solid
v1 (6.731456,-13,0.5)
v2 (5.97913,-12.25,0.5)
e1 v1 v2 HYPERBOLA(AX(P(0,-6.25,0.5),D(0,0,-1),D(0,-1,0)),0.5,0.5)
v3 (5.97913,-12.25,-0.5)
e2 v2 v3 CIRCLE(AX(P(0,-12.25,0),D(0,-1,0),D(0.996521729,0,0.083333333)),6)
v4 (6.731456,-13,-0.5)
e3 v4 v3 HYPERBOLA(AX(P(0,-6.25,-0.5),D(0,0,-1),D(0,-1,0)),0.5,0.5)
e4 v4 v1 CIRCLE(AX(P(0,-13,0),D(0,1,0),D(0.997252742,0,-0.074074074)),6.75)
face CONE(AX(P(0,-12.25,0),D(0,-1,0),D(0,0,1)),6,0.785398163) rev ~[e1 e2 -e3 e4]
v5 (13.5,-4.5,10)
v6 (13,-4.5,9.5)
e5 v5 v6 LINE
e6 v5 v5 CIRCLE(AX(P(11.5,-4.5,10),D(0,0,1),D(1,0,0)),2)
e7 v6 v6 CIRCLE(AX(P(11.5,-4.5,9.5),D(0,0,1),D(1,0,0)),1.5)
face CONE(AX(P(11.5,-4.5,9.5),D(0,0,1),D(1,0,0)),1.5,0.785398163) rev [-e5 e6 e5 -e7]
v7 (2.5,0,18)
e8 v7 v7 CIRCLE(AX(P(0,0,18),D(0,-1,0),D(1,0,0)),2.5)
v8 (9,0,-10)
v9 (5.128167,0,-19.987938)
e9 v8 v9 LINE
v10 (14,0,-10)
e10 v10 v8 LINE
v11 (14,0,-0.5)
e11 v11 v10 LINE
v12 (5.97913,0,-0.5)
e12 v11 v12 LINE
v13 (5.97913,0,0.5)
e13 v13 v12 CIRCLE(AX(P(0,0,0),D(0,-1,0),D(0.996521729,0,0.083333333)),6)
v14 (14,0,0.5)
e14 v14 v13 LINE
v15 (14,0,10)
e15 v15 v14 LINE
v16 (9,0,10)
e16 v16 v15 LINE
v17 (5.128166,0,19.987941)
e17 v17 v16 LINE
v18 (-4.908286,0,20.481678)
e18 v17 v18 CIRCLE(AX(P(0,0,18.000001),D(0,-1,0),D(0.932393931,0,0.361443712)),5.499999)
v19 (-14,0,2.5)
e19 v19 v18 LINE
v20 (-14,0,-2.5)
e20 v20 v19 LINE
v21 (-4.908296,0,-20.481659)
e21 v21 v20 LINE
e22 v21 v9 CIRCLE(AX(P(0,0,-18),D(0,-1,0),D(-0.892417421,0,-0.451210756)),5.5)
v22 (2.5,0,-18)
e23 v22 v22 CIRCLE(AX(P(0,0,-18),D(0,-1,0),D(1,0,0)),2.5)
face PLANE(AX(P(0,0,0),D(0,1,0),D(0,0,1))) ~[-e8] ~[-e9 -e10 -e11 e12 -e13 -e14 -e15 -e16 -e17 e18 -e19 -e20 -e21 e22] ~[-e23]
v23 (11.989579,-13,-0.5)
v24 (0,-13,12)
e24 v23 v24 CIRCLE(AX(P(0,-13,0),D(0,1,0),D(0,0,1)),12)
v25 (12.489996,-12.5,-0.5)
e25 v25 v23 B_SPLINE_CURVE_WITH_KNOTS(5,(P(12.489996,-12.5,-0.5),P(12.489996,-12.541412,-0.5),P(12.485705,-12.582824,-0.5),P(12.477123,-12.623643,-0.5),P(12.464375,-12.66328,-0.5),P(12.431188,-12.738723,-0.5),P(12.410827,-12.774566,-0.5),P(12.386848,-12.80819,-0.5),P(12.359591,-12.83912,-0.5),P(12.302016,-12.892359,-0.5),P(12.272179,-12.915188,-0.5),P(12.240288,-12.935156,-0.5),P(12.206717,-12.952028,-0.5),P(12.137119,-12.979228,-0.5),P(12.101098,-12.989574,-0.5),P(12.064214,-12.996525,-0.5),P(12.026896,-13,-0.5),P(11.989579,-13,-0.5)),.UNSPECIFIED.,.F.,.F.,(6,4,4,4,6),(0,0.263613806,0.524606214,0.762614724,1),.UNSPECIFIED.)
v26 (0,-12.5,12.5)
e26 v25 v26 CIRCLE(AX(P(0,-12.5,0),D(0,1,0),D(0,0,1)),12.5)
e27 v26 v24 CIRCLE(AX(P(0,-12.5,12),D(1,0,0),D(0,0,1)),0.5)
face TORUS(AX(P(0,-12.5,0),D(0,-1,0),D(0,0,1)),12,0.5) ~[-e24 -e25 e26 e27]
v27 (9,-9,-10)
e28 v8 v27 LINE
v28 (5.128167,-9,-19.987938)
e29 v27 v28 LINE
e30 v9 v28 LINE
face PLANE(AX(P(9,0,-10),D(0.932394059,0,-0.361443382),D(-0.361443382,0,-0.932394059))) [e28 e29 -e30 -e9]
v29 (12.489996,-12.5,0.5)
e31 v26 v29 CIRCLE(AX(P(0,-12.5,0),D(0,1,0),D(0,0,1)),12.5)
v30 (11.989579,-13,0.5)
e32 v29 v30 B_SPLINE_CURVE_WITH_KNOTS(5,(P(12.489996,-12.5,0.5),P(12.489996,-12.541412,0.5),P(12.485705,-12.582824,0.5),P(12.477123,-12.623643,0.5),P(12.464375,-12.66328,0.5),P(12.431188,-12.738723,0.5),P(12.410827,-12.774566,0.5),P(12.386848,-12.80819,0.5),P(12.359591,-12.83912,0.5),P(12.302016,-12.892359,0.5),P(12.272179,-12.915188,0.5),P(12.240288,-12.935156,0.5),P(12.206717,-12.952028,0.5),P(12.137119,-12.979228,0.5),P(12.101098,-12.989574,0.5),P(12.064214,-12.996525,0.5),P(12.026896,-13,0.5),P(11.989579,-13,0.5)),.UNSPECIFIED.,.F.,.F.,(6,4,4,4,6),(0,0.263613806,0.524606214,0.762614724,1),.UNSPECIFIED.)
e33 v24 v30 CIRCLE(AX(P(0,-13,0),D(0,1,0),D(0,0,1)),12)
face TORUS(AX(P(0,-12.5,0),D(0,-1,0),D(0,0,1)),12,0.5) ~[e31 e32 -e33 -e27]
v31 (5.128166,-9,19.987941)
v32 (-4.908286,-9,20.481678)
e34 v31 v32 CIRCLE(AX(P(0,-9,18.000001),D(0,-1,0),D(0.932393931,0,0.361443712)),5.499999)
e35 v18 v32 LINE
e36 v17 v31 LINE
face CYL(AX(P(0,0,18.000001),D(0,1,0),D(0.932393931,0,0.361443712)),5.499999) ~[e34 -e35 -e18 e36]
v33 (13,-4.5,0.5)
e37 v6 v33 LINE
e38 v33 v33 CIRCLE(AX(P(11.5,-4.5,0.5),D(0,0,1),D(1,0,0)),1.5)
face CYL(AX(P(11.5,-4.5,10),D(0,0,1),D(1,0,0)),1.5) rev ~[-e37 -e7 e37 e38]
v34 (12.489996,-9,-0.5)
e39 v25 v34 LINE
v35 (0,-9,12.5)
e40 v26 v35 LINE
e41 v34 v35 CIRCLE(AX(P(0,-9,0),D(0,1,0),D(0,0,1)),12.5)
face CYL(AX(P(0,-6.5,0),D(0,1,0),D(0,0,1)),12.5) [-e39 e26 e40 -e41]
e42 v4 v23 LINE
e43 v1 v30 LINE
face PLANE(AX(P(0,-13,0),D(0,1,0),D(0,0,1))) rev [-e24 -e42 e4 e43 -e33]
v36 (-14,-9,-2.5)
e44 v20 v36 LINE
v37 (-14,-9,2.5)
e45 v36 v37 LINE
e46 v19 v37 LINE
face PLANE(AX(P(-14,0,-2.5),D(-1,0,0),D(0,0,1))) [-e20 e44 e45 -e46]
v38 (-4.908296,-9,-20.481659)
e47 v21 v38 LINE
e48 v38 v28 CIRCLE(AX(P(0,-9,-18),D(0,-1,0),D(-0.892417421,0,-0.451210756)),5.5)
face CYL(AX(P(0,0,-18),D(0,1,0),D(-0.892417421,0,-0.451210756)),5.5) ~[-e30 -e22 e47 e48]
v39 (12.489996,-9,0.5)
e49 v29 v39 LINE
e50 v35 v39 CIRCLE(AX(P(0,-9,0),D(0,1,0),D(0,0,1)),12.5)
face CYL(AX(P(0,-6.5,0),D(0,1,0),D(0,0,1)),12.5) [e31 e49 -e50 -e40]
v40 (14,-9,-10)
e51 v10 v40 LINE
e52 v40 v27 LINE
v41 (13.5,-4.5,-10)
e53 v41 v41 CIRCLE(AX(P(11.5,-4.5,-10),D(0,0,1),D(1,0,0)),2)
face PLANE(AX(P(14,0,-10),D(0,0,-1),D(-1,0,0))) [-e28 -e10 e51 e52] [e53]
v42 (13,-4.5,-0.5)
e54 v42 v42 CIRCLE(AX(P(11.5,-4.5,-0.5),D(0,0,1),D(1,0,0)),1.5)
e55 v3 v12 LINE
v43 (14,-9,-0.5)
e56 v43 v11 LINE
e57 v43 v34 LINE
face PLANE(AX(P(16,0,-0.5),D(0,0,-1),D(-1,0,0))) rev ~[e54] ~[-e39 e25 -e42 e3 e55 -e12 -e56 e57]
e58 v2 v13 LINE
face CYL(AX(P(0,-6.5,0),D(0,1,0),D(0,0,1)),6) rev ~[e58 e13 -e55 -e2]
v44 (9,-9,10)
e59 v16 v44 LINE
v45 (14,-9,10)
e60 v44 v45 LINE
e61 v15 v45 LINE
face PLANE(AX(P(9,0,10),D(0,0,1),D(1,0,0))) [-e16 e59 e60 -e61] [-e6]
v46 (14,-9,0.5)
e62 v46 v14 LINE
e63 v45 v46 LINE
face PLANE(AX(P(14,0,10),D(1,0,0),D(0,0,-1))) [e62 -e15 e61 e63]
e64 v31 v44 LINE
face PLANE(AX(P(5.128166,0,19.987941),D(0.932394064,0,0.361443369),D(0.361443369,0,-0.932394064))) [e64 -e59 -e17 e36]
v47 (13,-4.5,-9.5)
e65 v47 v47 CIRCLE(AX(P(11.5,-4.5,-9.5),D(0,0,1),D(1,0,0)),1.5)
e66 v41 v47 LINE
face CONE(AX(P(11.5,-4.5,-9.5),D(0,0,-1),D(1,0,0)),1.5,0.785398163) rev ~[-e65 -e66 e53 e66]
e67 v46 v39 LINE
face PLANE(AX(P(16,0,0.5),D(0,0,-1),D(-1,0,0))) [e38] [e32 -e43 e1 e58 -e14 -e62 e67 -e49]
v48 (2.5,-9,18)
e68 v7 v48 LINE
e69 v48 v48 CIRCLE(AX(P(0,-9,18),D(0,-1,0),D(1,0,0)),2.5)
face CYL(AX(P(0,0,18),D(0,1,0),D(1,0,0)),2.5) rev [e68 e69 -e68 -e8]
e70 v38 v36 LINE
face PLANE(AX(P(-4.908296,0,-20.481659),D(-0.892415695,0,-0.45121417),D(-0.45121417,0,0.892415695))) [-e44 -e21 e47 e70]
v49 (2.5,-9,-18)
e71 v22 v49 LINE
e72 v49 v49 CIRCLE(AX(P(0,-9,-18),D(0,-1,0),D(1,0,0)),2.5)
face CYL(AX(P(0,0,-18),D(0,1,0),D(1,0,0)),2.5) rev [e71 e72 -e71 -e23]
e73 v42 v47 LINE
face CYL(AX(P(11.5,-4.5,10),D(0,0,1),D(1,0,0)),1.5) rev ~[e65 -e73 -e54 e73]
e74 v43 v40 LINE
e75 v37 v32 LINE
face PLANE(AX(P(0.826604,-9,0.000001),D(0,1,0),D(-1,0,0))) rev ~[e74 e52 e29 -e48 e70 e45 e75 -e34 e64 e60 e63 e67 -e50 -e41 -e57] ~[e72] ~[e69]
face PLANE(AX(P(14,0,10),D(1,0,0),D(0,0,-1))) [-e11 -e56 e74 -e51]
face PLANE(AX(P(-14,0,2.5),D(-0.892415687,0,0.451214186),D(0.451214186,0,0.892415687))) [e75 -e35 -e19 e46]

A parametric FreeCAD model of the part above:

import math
import FreeCAD as App
import Part
import Sketcher
Q = App.Units.Quantity


def edges_at(feature, points):
    """Names of the edges that pass closest to the given points."""
    edges = feature.Shape.Edges
    near = lambda p: min(range(len(edges)), key=lambda i: edges[i].distToShape(Part.Vertex(*p))[0])
    return sorted({f"Edge{near(p) + 1}" for p in points})


def add_polygon(sketch, points):
    """Adds a closed chain of lines whose ends are joined by coincident constraints."""
    first, n = sketch.GeometryCount, len(points)
    for a, b in zip(points, points[1:] + points[:1]):
        sketch.addGeometry(Part.LineSegment(App.Vector(*a, 0), App.Vector(*b, 0)), False)
    for i in range(n):
        sketch.addConstraint(Sketcher.Constraint("Coincident", first + i, 2, first + (i + 1) % n, 1))

doc = App.newDocument("Part")
body = doc.addObject("PartDesign::Body", "Body")

sketch1 = body.newObject("Sketcher::SketchObject", "Sketch")
sketch1.AttachmentSupport = (doc.getObject("YZ_Plane"), [""])
sketch1.MapMode = "FlatFace"
add_polygon(sketch1, [(-13, 12), (-13, 6), (0, 6), (0, 12)])
sketch1.addConstraint([
    Sketcher.Constraint("Vertical", 0),
    Sketcher.Constraint("Horizontal", 1),
    Sketcher.Constraint("Vertical", 2),
    Sketcher.Constraint("Horizontal", 3),
    Sketcher.Constraint("PointOnObject", 1, 2, -2),
    Sketcher.Constraint("DistanceX", 1, 1, 1, 2, Q("13 mm")),
    Sketcher.Constraint("DistanceY", 0, 2, 0, 1, Q("6.5 mm")),
    Sketcher.Constraint("DistanceY", -1, 1, 0, 2, Q("6 mm")),
])
revolution = body.newObject("PartDesign::Revolution", "Revolution")
revolution.Profile = sketch1
revolution.ReferenceAxis = (sketch1, ["H_Axis"])
revolution.Angle = 360
body2 = doc.addObject("PartDesign::Body", "Body001")

sketch2 = body2.newObject("Sketcher::SketchObject", "Sketch001")
sketch2.AttachmentSupport = (doc.getObject("XZ_Plane001"), [""])
sketch2.MapMode = "FlatFace"
sketch2.addGeometry([
    Part.LineSegment(App.Vector(-14, 2.5, 0), App.Vector(-14, -2.5, 0)),
    Part.LineSegment(App.Vector(-14, -2.5, 0), App.Vector(-4.9, -20.5, 0)),
    Part.ArcOfCircle(Part.Circle(App.Vector(0, -18, 0), App.Vector(0, 0, 1), 5.5), math.radians(-153), math.radians(-21)),
    Part.LineSegment(App.Vector(5.1, -20, 0), App.Vector(9, -10, 0)),
    Part.LineSegment(App.Vector(9, -10, 0), App.Vector(14, -10, 0)),
    Part.LineSegment(App.Vector(14, -10, 0), App.Vector(14, 10, 0)),
    Part.LineSegment(App.Vector(14, 10, 0), App.Vector(9, 10, 0)),
    Part.LineSegment(App.Vector(9, 10, 0), App.Vector(5.1, 20, 0)),
    Part.ArcOfCircle(Part.Circle(App.Vector(0, 18, 0), App.Vector(0, 0, 1), 5.5), math.radians(21), math.radians(153)),
    Part.LineSegment(App.Vector(-4.9, 20.5, 0), App.Vector(-14, 2.5, 0)),
    Part.Circle(App.Vector(0, -18, 0), App.Vector(0, 0, 1), 2.5),
    Part.Circle(App.Vector(0, 0, 0), App.Vector(0, 0, 1), 10),
    Part.Circle(App.Vector(0, 18, 0), App.Vector(0, 0, 1), 2.5),
], False)
sketch2.addConstraint([
    Sketcher.Constraint("Coincident", 0, 2, 1, 1),
    Sketcher.Constraint("Coincident", 1, 2, 2, 1),
    Sketcher.Constraint("Tangent", 2, 2, 3, 1),
    Sketcher.Constraint("Coincident", 3, 2, 4, 1),
    Sketcher.Constraint("Coincident", 4, 2, 5, 1),
    Sketcher.Constraint("Coincident", 5, 2, 6, 1),
    Sketcher.Constraint("Coincident", 6, 2, 7, 1),
    Sketcher.Constraint("Tangent", 7, 2, 8, 1),
    Sketcher.Constraint("Tangent", 8, 2, 9, 1),
    Sketcher.Constraint("Coincident", 9, 2, 0, 1),
    Sketcher.Constraint("Vertical", 0),
    Sketcher.Constraint("Horizontal", 4),
    Sketcher.Constraint("Vertical", 5),
    Sketcher.Constraint("Horizontal", 6),
    Sketcher.Constraint("Coincident", 11, 3, -1, 1),
    Sketcher.Constraint("Coincident", 10, 3, 2, 3),
    Sketcher.Constraint("Coincident", 12, 3, 8, 3),
    Sketcher.Constraint("Equal", 2, 8),
    Sketcher.Constraint("Equal", 10, 12),
    Sketcher.Constraint("Symmetric", 2, 3, 8, 3, -1, 1),
    Sketcher.Constraint("Symmetric", 3, 2, 6, 2, -1),
    Sketcher.Constraint("PointOnObject", 2, 3, -2),
    Sketcher.Constraint("Equal", 6, 0),
    Sketcher.Constraint("Diameter", 10, Q("5 mm")),
    Sketcher.Constraint("Diameter", 11, Q("20 mm")),
    Sketcher.Constraint("Radius", 2, Q("5.5 mm")),
    Sketcher.Constraint("DistanceX", 4, 1, 4, 2, Q("5 mm")),
    Sketcher.Constraint("DistanceY", 5, 1, 5, 2, Q("20 mm")),
    Sketcher.Constraint("DistanceY", 2, 3, -1, 1, Q("18 mm")),
    Sketcher.Constraint("DistanceX", 0, 2, -1, 1, Q("14 mm")),
    Sketcher.Constraint("DistanceX", -1, 1, 3, 2, Q("9 mm")),
    Sketcher.Constraint("DistanceY", 0, 2, -1, 1, Q("2.5 mm")),
    Sketcher.Constraint("Distance", 1, Q("20.14942 mm")),
])
pad1 = body2.newObject("PartDesign::Pad", "Pad")
pad1.Profile = sketch2
pad1.Length = 9
doc.recompute()

boolean = body2.newObject("PartDesign::Boolean", "Boolean")
boolean.Type = "Fuse"
boolean.addObjects([body])

sketch3 = body2.newObject("Sketcher::SketchObject", "Sketch002")
sketch3.AttachmentSupport = (doc.getObject("XY_Plane001"), [""])
sketch3.MapMode = "FlatFace"
sketch3.AttachmentOffset = App.Placement(App.Vector(0, 0, 10), App.Rotation())
sketch3.addGeometry(Part.Circle(App.Vector(11.5, -4.5, 0), App.Vector(0, 0, 1), 1.5), False)
sketch3.addConstraint([
    Sketcher.Constraint("Diameter", 0, Q("3 mm")),
    Sketcher.Constraint("DistanceX", -1, 1, 0, 3, Q("11.5 mm")),
    Sketcher.Constraint("DistanceY", 0, 3, -1, 1, Q("4.5 mm")),
])
pocket1 = body2.newObject("PartDesign::Pocket", "Pocket")
pocket1.Profile = sketch3
pocket1.Type = "ThroughAll"
doc.recompute()

chamfer = body2.newObject("PartDesign::Chamfer", "Chamfer")
chamfer.Base = (pocket1, edges_at(pocket1, [(0, -13, -6)]))
chamfer.Size = 0.75
doc.recompute()

chamfer2 = body2.newObject("PartDesign::Chamfer", "Chamfer001")
chamfer2.Base = (chamfer, edges_at(chamfer, [(10, -4.5, 10), (10, -4.5, -10)]))
chamfer2.Size = 0.5
doc.recompute()

fillet = body2.newObject("PartDesign::Fillet", "Fillet")
fillet.Base = (chamfer2, edges_at(chamfer2, [(0, -13, -12.5)]))
fillet.Radius = 0.5

sketch4 = body2.newObject("Sketcher::SketchObject", "Sketch003")
sketch4.AttachmentSupport = (doc.getObject("XZ_Plane001"), [""])
sketch4.MapMode = "FlatFace"
add_polygon(sketch4, [(16, 0.5), (16, -0.5), (0, -0.5), (0, 0.5)])
sketch4.addConstraint([
    Sketcher.Constraint("Vertical", 0),
    Sketcher.Constraint("Horizontal", 1),
    Sketcher.Constraint("Vertical", 2),
    Sketcher.Constraint("Horizontal", 3),
    Sketcher.Constraint("Symmetric", 1, 2, 2, 2, -1, 1),
    Sketcher.Constraint("DistanceX", 1, 2, 1, 1, Q("16 mm")),
    Sketcher.Constraint("DistanceY", 0, 2, 0, 1, Q("1 mm")),
])
pocket2 = body2.newObject("PartDesign::Pocket", "Pocket001")
pocket2.Profile = sketch4
pocket2.Type = "ThroughAll"
pocket2.Reversed = True

doc.recompute()
